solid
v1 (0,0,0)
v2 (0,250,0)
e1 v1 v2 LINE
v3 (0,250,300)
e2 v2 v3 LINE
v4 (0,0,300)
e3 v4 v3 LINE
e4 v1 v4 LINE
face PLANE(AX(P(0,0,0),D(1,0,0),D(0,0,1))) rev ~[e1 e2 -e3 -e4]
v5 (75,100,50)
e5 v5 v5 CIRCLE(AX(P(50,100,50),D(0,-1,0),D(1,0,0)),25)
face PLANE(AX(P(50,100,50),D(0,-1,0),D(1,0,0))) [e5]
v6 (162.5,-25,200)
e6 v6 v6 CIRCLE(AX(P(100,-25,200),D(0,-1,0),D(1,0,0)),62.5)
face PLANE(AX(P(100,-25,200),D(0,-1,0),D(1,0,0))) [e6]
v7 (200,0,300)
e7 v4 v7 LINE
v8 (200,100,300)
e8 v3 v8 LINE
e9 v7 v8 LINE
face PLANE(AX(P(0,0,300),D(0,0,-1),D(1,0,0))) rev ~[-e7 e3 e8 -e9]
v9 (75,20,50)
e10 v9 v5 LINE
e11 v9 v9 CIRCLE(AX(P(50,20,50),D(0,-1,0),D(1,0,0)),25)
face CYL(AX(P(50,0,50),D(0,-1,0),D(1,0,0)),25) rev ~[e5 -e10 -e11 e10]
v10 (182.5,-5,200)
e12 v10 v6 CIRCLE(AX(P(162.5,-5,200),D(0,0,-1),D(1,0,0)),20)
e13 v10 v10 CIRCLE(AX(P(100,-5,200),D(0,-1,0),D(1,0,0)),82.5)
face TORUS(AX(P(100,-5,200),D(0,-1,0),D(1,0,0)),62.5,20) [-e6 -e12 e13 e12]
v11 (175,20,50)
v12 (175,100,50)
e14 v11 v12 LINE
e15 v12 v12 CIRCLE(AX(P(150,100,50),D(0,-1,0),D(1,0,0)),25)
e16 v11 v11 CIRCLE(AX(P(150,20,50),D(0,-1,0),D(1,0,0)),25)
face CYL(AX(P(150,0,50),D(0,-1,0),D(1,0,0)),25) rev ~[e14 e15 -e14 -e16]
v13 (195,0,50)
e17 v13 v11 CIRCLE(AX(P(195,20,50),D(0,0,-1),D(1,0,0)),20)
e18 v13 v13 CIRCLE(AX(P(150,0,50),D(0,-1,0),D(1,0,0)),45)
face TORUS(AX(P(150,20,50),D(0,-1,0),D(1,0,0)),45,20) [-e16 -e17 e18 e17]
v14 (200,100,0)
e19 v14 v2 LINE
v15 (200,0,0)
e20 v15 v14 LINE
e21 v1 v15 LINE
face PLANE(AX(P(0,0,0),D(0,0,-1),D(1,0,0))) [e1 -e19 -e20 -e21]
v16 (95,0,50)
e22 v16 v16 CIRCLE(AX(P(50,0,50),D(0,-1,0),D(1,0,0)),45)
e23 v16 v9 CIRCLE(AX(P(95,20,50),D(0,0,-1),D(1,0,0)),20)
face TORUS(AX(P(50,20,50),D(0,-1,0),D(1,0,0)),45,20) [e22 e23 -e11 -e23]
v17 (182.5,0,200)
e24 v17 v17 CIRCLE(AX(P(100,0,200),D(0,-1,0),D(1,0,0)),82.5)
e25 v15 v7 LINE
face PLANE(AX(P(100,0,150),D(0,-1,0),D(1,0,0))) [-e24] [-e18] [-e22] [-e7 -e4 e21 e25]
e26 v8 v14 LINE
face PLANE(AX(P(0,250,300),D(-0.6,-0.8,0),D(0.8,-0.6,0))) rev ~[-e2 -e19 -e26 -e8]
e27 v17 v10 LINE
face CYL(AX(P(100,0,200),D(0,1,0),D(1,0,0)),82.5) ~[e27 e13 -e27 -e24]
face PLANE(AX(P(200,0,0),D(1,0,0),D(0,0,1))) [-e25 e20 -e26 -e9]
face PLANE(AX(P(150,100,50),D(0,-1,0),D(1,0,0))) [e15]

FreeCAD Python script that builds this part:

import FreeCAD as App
import Part
import Sketcher
from FreeCAD import Vector
Q = App.Units.Quantity


def edges_at(feature, points):
    """Names of the edges that pass closest to the given points."""
    edges = feature.Shape.Edges
    near = lambda p: min(range(len(edges)), key=lambda i: edges[i].distToShape(Part.Vertex(*p))[0])
    return sorted({f"Edge{near(p) + 1}" for p in points})

doc = App.newDocument("Part")
body = doc.addObject("PartDesign::Body", "Body")

sketch1 = body.newObject("Sketcher::SketchObject", "Sketch")
sketch1.AttachmentSupport = (doc.getObject("XZ_Plane"), [""])
sketch1.MapMode = "FlatFace"
sketch1.addGeometry([
    Part.LineSegment(Vector(0, 300, 0), Vector(0, 0, 0)),
    Part.LineSegment(Vector(0, 0, 0), Vector(200, 0, 0)),
    Part.LineSegment(Vector(200, 0, 0), Vector(200, 300, 0)),
    Part.LineSegment(Vector(200, 300, 0), Vector(0, 300, 0)),
], False)
sketch1.addConstraint([
    Sketcher.Constraint("Coincident", 0, 2, 1, 1),
    Sketcher.Constraint("Coincident", 1, 2, 2, 1),
    Sketcher.Constraint("Coincident", 2, 2, 3, 1),
    Sketcher.Constraint("Coincident", 3, 2, 0, 1),
    Sketcher.Constraint("Vertical", 0),
    Sketcher.Constraint("Horizontal", 1),
    Sketcher.Constraint("Vertical", 2),
    Sketcher.Constraint("Horizontal", 3),
    Sketcher.Constraint("Coincident", 0, 2, -1, 1),
    Sketcher.Constraint("DistanceX", 1, 1, 1, 2, Q("200 mm")),
    Sketcher.Constraint("DistanceY", 0, 2, 0, 1, Q("300 mm")),
])
pad1 = body.newObject("PartDesign::Pad", "Pad")
pad1.Profile = sketch1
pad1.Length = 250
pad1.Reversed = True

sketch2 = body.newObject("Sketcher::SketchObject", "Sketch001")
sketch2.AttachmentSupport = (doc.getObject("XZ_Plane"), [""])
sketch2.MapMode = "FlatFace"
sketch2.addGeometry(Part.Circle(Vector(100, 200, 0), Vector(0, 0, 1), 82), False)
sketch2.addConstraint([
    Sketcher.Constraint("Diameter", 0, Q("165 mm")),
    Sketcher.Constraint("DistanceX", -1, 1, 0, 3, Q("100 mm")),
    Sketcher.Constraint("DistanceY", -1, 1, 0, 3, Q("200 mm")),
])
pad2 = body.newObject("PartDesign::Pad", "Pad001")
pad2.Profile = sketch2
pad2.Length = 25

sketch3 = body.newObject("Sketcher::SketchObject", "Sketch002")
sketch3.AttachmentSupport = (doc.getObject("XY_Plane"), [""])
sketch3.MapMode = "FlatFace"
sketch3.AttachmentOffset = App.Placement(Vector(0, 0, 300), App.Rotation())
sketch3.addGeometry([
    Part.LineSegment(Vector(200, 250, 0), Vector(0, 250, 0)),
    Part.LineSegment(Vector(0, 250, 0), Vector(200, 100, 0)),
    Part.LineSegment(Vector(200, 100, 0), Vector(200, 250, 0)),
], False)
sketch3.addConstraint([
    Sketcher.Constraint("Coincident", 0, 2, 1, 1),
    Sketcher.Constraint("Coincident", 1, 2, 2, 1),
    Sketcher.Constraint("Coincident", 2, 2, 0, 1),
    Sketcher.Constraint("Horizontal", 0),
    Sketcher.Constraint("Vertical", 2),
    Sketcher.Constraint("PointOnObject", 0, 2, -2),
    Sketcher.Constraint("DistanceX", 0, 2, 0, 1, Q("200 mm")),
    Sketcher.Constraint("DistanceY", 2, 1, 2, 2, Q("150 mm")),
    Sketcher.Constraint("DistanceY", -1, 1, 0, 2, Q("250 mm")),
])
pocket1 = body.newObject("PartDesign::Pocket", "Pocket")
pocket1.Profile = sketch3
pocket1.Type = "ThroughAll"

sketch4 = body.newObject("Sketcher::SketchObject", "Sketch003")
sketch4.AttachmentSupport = (doc.getObject("XZ_Plane"), [""])
sketch4.MapMode = "FlatFace"
sketch4.addGeometry([
    Part.Circle(Vector(150, 50, 0), Vector(0, 0, 1), 25),
    Part.Circle(Vector(50, 50, 0), Vector(0, 0, 1), 25),
], False)
sketch4.addConstraint([
    Sketcher.Constraint("Equal", 0, 1),
    Sketcher.Constraint("Horizontal", 0, 3, 1, 3),
    Sketcher.Constraint("Diameter", 0, Q("50 mm")),
    Sketcher.Constraint("DistanceX", -1, 1, 0, 3, Q("150 mm")),
    Sketcher.Constraint("DistanceY", -1, 1, 0, 3, Q("50 mm")),
    Sketcher.Constraint("DistanceX", -1, 1, 1, 3, Q("50 mm")),
])
pocket2 = body.newObject("PartDesign::Pocket", "Pocket001")
pocket2.Profile = sketch4
pocket2.Length = 100
doc.recompute()

fillet = body.newObject("PartDesign::Fillet", "Fillet")
fillet.Base = (pocket2, edges_at(pocket2, [(25, 0, 50), (125, 0, 50), (17.5, -25, 200)]))
fillet.Radius = 20

doc.recompute()
